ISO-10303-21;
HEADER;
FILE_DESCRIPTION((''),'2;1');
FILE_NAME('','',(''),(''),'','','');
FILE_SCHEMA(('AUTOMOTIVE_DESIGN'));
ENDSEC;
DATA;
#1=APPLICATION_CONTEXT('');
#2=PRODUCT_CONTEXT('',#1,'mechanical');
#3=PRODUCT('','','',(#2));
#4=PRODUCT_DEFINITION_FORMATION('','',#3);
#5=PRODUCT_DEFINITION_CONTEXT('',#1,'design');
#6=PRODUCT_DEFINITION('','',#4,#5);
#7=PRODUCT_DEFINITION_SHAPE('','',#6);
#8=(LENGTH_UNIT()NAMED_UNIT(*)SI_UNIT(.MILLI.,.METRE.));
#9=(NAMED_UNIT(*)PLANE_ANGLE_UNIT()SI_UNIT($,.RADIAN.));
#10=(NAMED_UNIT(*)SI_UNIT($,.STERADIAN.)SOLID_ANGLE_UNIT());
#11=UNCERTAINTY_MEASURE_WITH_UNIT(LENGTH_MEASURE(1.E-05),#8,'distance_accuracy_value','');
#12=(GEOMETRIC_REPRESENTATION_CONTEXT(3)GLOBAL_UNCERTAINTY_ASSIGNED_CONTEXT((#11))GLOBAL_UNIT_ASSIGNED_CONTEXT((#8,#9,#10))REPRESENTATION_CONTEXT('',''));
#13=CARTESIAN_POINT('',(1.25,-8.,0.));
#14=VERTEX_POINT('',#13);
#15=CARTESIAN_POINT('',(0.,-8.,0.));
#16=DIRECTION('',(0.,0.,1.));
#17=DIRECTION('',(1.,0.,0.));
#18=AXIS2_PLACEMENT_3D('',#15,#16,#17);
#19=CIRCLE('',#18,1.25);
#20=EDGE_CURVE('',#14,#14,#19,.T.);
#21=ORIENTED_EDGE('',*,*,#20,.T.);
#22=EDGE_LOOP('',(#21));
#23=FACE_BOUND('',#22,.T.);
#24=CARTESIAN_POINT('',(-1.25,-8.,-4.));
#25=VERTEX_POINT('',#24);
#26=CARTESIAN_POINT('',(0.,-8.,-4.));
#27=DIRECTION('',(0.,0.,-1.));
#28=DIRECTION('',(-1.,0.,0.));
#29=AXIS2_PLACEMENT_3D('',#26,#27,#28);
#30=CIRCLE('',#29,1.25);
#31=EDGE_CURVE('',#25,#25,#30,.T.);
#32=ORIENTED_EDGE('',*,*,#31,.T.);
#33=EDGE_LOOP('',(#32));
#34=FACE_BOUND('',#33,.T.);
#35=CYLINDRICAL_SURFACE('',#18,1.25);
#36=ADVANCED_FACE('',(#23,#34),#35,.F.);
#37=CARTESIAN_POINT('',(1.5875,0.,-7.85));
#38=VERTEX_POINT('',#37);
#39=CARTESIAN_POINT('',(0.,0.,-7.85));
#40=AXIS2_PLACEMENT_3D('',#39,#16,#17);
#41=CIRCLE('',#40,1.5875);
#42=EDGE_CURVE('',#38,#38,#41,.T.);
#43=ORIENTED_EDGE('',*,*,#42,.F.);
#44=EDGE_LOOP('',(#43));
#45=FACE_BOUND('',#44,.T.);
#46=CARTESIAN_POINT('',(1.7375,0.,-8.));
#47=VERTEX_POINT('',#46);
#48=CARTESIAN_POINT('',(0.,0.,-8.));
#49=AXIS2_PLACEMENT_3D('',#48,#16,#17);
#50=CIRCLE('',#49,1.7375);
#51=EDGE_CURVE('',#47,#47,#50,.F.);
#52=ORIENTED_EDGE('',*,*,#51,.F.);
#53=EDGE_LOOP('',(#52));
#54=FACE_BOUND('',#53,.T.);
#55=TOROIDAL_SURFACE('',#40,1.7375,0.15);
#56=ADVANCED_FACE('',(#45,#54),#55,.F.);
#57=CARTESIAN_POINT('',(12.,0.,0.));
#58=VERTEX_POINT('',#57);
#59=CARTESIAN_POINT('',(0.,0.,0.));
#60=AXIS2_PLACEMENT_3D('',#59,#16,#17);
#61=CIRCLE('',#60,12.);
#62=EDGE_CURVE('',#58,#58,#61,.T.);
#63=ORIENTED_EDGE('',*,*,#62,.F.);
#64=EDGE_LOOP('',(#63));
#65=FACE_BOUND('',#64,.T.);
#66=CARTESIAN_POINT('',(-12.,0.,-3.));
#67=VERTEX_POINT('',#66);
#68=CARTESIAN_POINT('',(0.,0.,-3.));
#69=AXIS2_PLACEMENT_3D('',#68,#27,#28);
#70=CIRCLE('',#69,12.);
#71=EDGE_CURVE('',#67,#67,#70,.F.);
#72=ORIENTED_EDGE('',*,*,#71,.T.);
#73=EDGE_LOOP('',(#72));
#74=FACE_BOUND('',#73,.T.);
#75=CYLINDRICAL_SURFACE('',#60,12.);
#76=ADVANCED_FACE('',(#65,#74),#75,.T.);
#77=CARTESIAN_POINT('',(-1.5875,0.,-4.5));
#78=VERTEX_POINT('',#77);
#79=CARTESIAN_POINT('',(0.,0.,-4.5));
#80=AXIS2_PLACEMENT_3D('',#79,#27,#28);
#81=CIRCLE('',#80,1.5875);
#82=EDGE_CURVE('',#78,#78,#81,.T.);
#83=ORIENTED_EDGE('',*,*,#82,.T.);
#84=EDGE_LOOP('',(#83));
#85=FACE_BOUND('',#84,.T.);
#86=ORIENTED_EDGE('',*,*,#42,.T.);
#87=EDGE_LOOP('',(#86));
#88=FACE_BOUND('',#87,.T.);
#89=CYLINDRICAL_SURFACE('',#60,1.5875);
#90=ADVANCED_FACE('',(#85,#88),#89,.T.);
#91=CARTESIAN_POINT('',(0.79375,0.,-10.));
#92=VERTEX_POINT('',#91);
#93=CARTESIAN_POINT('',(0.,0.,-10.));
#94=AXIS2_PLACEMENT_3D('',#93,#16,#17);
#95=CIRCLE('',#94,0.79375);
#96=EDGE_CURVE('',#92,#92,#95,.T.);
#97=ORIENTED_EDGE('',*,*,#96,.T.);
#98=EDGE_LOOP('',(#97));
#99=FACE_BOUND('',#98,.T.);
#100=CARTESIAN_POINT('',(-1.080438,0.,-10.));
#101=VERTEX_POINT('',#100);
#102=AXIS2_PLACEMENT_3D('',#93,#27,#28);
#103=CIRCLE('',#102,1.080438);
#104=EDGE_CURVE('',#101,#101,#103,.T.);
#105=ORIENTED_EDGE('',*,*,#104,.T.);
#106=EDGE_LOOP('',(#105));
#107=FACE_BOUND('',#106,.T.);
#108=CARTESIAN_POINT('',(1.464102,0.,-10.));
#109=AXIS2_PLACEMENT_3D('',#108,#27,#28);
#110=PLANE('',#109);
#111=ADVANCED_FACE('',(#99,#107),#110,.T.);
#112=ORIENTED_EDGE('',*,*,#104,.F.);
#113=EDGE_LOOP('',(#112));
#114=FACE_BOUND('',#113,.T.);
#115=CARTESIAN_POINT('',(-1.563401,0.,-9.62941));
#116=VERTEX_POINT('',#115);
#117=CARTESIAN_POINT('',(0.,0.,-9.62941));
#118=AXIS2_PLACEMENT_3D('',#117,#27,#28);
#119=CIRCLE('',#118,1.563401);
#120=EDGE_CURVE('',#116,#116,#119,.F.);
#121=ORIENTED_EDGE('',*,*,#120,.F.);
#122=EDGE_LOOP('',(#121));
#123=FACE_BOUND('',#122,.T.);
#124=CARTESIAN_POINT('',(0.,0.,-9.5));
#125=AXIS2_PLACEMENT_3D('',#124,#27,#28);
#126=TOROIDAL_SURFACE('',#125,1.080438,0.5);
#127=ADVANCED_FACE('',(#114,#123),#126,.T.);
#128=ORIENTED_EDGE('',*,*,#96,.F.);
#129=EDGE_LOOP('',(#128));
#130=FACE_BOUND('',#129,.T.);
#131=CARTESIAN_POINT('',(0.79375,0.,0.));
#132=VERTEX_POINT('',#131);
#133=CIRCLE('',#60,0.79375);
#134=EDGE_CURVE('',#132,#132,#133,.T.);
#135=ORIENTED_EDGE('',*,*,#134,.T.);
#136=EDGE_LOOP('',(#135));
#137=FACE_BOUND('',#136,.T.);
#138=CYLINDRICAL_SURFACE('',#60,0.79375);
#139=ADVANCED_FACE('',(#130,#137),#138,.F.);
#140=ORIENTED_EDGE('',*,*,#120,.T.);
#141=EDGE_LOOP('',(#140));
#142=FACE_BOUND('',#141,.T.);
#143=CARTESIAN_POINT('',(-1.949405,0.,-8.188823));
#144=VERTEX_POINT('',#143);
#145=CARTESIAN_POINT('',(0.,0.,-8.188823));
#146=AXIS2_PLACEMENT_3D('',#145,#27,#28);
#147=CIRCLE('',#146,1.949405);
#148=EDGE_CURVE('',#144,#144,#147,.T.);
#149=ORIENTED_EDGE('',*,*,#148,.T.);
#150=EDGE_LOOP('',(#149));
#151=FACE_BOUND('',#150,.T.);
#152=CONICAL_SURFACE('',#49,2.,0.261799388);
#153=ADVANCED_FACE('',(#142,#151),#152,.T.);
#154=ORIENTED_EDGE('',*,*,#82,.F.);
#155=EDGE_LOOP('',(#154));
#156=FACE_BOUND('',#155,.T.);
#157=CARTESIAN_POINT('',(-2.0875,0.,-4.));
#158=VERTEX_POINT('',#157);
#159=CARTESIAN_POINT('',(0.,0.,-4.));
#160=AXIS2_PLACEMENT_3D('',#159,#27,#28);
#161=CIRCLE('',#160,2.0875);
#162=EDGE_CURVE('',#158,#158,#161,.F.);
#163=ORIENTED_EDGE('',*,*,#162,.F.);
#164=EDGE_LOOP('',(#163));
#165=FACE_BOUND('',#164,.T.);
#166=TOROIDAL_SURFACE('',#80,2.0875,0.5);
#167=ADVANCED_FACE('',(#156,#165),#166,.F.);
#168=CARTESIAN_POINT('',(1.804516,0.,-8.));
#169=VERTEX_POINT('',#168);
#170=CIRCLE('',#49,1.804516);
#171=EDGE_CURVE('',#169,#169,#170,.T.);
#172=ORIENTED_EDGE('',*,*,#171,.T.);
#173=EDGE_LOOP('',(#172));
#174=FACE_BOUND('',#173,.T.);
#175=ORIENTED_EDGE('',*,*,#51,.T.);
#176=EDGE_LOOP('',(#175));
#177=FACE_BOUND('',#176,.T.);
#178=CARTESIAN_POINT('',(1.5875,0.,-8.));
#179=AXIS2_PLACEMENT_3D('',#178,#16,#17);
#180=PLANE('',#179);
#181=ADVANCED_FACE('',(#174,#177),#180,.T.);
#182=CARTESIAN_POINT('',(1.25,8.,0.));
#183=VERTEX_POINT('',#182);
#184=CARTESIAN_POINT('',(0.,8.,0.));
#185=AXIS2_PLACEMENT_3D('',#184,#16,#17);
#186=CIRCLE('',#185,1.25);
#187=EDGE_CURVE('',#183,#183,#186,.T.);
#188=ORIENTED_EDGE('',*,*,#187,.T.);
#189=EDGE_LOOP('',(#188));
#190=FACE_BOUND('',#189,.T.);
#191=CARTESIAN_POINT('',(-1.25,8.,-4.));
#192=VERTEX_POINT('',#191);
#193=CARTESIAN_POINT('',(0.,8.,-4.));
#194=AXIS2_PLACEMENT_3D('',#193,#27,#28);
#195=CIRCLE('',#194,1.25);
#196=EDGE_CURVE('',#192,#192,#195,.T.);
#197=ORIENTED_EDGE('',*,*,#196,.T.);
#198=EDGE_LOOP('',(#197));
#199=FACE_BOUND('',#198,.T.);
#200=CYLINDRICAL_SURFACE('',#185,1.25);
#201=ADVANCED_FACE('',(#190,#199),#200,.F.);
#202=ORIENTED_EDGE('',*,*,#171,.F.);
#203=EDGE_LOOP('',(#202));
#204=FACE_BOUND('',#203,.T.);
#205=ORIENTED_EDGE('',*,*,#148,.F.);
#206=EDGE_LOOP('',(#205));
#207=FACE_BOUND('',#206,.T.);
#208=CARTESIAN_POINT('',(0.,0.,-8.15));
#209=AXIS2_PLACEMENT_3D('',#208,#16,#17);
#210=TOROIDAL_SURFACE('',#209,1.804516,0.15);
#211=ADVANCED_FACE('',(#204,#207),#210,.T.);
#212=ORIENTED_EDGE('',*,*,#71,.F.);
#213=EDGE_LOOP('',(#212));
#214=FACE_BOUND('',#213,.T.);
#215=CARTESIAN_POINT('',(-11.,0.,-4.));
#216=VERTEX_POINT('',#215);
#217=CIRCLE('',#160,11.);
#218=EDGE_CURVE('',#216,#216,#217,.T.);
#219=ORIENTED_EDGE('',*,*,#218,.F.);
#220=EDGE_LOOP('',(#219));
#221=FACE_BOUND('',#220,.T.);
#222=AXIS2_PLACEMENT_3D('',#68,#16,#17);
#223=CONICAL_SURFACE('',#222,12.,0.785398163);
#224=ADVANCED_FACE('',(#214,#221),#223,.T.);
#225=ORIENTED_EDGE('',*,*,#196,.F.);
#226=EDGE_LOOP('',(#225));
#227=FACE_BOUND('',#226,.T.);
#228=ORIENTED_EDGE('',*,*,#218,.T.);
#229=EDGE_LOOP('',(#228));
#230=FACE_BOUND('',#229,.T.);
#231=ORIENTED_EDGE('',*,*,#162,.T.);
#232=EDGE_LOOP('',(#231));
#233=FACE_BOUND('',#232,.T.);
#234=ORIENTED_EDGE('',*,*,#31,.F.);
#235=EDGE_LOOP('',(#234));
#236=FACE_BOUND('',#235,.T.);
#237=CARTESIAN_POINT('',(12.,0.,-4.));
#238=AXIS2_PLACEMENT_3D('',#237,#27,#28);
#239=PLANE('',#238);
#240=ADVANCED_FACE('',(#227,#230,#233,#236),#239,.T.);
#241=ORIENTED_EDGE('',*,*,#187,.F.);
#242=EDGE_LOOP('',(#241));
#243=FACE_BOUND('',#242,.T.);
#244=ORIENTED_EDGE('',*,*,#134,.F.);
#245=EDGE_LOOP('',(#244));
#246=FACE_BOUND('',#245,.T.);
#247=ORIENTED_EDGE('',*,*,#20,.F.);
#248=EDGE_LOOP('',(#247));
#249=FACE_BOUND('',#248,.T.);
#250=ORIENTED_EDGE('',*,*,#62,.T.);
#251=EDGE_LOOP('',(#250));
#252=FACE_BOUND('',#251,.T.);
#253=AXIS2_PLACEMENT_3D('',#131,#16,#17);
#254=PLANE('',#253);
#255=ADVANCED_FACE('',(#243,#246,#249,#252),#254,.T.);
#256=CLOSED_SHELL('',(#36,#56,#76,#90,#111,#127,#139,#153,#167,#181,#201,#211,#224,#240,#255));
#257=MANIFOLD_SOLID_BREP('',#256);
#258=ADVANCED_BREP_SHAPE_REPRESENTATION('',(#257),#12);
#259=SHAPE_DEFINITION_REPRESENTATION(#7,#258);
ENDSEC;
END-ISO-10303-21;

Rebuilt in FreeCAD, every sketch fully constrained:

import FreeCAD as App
import Part
import Sketcher
from FreeCAD import Vector
Q = App.Units.Quantity


def edges_at(feature, points):
    """Names of the edges that pass closest to the given points."""
    edges = feature.Shape.Edges
    near = lambda p: min(range(len(edges)), key=lambda i: edges[i].distToShape(Part.Vertex(*p))[0])
    return sorted({f"Edge{near(p) + 1}" for p in points})

doc = App.newDocument("Part")
body = doc.addObject("PartDesign::Body", "Body")

# Sketch on XZ plane
sketch1 = body.newObject("Sketcher::SketchObject", "Sketch")
sketch1.AttachmentSupport = (doc.getObject("XZ_Plane"), [""])
sketch1.MapMode = "FlatFace"
sketch1.addGeometry([
    Part.LineSegment(Vector(0.79375, 0, 0), Vector(12, 0, 0)),  # 0
    Part.LineSegment(Vector(12, 0, 0), Vector(12, -4, 0)),  # 1
    Part.LineSegment(Vector(12, -4, 0), Vector(1.5875, -4, 0)),  # 2
    Part.LineSegment(Vector(1.5875, -4, 0), Vector(1.5875, -8, 0)),  # 3
    Part.LineSegment(Vector(1.5875, -8, 0), Vector(2, -8, 0)),  # 4
    Part.LineSegment(Vector(2, -8, 0), Vector(1.464102, -10, 0)),  # 5
    Part.LineSegment(Vector(1.464102, -10, 0), Vector(0.79375, -10, 0)),  # 6
    Part.LineSegment(Vector(0.79375, -10, 0), Vector(0.79375, 0, 0)),  # 7
], False)
sketch1.addConstraint([
    Sketcher.Constraint("Coincident", 0, 2, 1, 1),
    Sketcher.Constraint("Coincident", 1, 2, 2, 1),
    Sketcher.Constraint("Coincident", 2, 2, 3, 1),
    Sketcher.Constraint("Coincident", 3, 2, 4, 1),
    Sketcher.Constraint("Coincident", 4, 2, 5, 1),
    Sketcher.Constraint("Coincident", 5, 2, 6, 1),
    Sketcher.Constraint("Coincident", 6, 2, 7, 1),
    Sketcher.Constraint("Coincident", 7, 2, 0, 1),
    Sketcher.Constraint("Horizontal", 0),
    Sketcher.Constraint("Vertical", 1),
    Sketcher.Constraint("Horizontal", 2),
    Sketcher.Constraint("Vertical", 3),
    Sketcher.Constraint("Horizontal", 4),
    Sketcher.Constraint("Horizontal", 6),
    Sketcher.Constraint("Vertical", 7),
    Sketcher.Constraint("PointOnObject", 0, 2, -1),
    Sketcher.Constraint("Equal", 1, 3),
    Sketcher.Constraint("DistanceY", 1, 2, 1, 1, Q("4 mm")),
    Sketcher.Constraint("DistanceY", 7, 1, 7, 2, Q("10 mm")),
    Sketcher.Constraint("Angle", 5, Q("-105 deg")),
    Sketcher.Constraint("DistanceX", -1, 1, 0, 2, Q("12 mm")),
    Sketcher.Constraint("DistanceX", -1, 1, 4, 2, Q("2 mm")),
    Sketcher.Constraint("DistanceX", 2, 2, 2, 1, Q("10.4125 mm")),
    Sketcher.Constraint("DistanceX", 0, 1, 0, 2, Q("11.20625 mm")),
])
revolution = body.newObject("PartDesign::Revolution", "Revolution")
revolution.Profile = sketch1
revolution.ReferenceAxis = (sketch1, ["V_Axis"])
revolution.Angle = 360

# Sketch on XY plane
sketch2 = body.newObject("Sketcher::SketchObject", "Sketch001")
sketch2.AttachmentSupport = (doc.getObject("XY_Plane"), [""])
sketch2.MapMode = "FlatFace"
sketch2.addGeometry([
    Part.Circle(Vector(0, 8, 0), Vector(0, 0, 1), 1.25),
    Part.Circle(Vector(0, -8, 0), Vector(0, 0, 1), 1.25),
], False)
sketch2.addConstraint([
    Sketcher.Constraint("Equal", 0, 1),
    Sketcher.Constraint("Symmetric", 0, 3, 1, 3, -1, 1),
    Sketcher.Constraint("PointOnObject", 0, 3, -2),
    Sketcher.Constraint("Diameter", 0, Q("2.5 mm")),
    Sketcher.Constraint("DistanceY", -1, 1, 0, 3, Q("8 mm")),
])
doc.recompute()
hole = body.newObject("PartDesign::Hole", "Hole")
hole.Profile = sketch2
hole.ThreadType = "None"
hole.Diameter = 2.5
hole.DepthType = "ThroughAll"
doc.recompute()

chamfer = body.newObject("PartDesign::Chamfer", "Chamfer")
chamfer.Base = (hole, edges_at(hole, [(-12, 0, -4)]))
chamfer.Size = 1
doc.recompute()

fillet = body.newObject("PartDesign::Fillet", "Fillet")
fillet.Base = (chamfer, edges_at(chamfer, [(-1.464, 0, -10), (-1.587, 0, -4)]))
fillet.Radius = 0.5
doc.recompute()

fillet2 = body.newObject("PartDesign::Fillet", "Fillet001")
fillet2.Base = (fillet, edges_at(fillet, [(-2, 0, -8), (-1.587, 0, -8)]))
fillet2.Radius = 0.15

doc.recompute()
